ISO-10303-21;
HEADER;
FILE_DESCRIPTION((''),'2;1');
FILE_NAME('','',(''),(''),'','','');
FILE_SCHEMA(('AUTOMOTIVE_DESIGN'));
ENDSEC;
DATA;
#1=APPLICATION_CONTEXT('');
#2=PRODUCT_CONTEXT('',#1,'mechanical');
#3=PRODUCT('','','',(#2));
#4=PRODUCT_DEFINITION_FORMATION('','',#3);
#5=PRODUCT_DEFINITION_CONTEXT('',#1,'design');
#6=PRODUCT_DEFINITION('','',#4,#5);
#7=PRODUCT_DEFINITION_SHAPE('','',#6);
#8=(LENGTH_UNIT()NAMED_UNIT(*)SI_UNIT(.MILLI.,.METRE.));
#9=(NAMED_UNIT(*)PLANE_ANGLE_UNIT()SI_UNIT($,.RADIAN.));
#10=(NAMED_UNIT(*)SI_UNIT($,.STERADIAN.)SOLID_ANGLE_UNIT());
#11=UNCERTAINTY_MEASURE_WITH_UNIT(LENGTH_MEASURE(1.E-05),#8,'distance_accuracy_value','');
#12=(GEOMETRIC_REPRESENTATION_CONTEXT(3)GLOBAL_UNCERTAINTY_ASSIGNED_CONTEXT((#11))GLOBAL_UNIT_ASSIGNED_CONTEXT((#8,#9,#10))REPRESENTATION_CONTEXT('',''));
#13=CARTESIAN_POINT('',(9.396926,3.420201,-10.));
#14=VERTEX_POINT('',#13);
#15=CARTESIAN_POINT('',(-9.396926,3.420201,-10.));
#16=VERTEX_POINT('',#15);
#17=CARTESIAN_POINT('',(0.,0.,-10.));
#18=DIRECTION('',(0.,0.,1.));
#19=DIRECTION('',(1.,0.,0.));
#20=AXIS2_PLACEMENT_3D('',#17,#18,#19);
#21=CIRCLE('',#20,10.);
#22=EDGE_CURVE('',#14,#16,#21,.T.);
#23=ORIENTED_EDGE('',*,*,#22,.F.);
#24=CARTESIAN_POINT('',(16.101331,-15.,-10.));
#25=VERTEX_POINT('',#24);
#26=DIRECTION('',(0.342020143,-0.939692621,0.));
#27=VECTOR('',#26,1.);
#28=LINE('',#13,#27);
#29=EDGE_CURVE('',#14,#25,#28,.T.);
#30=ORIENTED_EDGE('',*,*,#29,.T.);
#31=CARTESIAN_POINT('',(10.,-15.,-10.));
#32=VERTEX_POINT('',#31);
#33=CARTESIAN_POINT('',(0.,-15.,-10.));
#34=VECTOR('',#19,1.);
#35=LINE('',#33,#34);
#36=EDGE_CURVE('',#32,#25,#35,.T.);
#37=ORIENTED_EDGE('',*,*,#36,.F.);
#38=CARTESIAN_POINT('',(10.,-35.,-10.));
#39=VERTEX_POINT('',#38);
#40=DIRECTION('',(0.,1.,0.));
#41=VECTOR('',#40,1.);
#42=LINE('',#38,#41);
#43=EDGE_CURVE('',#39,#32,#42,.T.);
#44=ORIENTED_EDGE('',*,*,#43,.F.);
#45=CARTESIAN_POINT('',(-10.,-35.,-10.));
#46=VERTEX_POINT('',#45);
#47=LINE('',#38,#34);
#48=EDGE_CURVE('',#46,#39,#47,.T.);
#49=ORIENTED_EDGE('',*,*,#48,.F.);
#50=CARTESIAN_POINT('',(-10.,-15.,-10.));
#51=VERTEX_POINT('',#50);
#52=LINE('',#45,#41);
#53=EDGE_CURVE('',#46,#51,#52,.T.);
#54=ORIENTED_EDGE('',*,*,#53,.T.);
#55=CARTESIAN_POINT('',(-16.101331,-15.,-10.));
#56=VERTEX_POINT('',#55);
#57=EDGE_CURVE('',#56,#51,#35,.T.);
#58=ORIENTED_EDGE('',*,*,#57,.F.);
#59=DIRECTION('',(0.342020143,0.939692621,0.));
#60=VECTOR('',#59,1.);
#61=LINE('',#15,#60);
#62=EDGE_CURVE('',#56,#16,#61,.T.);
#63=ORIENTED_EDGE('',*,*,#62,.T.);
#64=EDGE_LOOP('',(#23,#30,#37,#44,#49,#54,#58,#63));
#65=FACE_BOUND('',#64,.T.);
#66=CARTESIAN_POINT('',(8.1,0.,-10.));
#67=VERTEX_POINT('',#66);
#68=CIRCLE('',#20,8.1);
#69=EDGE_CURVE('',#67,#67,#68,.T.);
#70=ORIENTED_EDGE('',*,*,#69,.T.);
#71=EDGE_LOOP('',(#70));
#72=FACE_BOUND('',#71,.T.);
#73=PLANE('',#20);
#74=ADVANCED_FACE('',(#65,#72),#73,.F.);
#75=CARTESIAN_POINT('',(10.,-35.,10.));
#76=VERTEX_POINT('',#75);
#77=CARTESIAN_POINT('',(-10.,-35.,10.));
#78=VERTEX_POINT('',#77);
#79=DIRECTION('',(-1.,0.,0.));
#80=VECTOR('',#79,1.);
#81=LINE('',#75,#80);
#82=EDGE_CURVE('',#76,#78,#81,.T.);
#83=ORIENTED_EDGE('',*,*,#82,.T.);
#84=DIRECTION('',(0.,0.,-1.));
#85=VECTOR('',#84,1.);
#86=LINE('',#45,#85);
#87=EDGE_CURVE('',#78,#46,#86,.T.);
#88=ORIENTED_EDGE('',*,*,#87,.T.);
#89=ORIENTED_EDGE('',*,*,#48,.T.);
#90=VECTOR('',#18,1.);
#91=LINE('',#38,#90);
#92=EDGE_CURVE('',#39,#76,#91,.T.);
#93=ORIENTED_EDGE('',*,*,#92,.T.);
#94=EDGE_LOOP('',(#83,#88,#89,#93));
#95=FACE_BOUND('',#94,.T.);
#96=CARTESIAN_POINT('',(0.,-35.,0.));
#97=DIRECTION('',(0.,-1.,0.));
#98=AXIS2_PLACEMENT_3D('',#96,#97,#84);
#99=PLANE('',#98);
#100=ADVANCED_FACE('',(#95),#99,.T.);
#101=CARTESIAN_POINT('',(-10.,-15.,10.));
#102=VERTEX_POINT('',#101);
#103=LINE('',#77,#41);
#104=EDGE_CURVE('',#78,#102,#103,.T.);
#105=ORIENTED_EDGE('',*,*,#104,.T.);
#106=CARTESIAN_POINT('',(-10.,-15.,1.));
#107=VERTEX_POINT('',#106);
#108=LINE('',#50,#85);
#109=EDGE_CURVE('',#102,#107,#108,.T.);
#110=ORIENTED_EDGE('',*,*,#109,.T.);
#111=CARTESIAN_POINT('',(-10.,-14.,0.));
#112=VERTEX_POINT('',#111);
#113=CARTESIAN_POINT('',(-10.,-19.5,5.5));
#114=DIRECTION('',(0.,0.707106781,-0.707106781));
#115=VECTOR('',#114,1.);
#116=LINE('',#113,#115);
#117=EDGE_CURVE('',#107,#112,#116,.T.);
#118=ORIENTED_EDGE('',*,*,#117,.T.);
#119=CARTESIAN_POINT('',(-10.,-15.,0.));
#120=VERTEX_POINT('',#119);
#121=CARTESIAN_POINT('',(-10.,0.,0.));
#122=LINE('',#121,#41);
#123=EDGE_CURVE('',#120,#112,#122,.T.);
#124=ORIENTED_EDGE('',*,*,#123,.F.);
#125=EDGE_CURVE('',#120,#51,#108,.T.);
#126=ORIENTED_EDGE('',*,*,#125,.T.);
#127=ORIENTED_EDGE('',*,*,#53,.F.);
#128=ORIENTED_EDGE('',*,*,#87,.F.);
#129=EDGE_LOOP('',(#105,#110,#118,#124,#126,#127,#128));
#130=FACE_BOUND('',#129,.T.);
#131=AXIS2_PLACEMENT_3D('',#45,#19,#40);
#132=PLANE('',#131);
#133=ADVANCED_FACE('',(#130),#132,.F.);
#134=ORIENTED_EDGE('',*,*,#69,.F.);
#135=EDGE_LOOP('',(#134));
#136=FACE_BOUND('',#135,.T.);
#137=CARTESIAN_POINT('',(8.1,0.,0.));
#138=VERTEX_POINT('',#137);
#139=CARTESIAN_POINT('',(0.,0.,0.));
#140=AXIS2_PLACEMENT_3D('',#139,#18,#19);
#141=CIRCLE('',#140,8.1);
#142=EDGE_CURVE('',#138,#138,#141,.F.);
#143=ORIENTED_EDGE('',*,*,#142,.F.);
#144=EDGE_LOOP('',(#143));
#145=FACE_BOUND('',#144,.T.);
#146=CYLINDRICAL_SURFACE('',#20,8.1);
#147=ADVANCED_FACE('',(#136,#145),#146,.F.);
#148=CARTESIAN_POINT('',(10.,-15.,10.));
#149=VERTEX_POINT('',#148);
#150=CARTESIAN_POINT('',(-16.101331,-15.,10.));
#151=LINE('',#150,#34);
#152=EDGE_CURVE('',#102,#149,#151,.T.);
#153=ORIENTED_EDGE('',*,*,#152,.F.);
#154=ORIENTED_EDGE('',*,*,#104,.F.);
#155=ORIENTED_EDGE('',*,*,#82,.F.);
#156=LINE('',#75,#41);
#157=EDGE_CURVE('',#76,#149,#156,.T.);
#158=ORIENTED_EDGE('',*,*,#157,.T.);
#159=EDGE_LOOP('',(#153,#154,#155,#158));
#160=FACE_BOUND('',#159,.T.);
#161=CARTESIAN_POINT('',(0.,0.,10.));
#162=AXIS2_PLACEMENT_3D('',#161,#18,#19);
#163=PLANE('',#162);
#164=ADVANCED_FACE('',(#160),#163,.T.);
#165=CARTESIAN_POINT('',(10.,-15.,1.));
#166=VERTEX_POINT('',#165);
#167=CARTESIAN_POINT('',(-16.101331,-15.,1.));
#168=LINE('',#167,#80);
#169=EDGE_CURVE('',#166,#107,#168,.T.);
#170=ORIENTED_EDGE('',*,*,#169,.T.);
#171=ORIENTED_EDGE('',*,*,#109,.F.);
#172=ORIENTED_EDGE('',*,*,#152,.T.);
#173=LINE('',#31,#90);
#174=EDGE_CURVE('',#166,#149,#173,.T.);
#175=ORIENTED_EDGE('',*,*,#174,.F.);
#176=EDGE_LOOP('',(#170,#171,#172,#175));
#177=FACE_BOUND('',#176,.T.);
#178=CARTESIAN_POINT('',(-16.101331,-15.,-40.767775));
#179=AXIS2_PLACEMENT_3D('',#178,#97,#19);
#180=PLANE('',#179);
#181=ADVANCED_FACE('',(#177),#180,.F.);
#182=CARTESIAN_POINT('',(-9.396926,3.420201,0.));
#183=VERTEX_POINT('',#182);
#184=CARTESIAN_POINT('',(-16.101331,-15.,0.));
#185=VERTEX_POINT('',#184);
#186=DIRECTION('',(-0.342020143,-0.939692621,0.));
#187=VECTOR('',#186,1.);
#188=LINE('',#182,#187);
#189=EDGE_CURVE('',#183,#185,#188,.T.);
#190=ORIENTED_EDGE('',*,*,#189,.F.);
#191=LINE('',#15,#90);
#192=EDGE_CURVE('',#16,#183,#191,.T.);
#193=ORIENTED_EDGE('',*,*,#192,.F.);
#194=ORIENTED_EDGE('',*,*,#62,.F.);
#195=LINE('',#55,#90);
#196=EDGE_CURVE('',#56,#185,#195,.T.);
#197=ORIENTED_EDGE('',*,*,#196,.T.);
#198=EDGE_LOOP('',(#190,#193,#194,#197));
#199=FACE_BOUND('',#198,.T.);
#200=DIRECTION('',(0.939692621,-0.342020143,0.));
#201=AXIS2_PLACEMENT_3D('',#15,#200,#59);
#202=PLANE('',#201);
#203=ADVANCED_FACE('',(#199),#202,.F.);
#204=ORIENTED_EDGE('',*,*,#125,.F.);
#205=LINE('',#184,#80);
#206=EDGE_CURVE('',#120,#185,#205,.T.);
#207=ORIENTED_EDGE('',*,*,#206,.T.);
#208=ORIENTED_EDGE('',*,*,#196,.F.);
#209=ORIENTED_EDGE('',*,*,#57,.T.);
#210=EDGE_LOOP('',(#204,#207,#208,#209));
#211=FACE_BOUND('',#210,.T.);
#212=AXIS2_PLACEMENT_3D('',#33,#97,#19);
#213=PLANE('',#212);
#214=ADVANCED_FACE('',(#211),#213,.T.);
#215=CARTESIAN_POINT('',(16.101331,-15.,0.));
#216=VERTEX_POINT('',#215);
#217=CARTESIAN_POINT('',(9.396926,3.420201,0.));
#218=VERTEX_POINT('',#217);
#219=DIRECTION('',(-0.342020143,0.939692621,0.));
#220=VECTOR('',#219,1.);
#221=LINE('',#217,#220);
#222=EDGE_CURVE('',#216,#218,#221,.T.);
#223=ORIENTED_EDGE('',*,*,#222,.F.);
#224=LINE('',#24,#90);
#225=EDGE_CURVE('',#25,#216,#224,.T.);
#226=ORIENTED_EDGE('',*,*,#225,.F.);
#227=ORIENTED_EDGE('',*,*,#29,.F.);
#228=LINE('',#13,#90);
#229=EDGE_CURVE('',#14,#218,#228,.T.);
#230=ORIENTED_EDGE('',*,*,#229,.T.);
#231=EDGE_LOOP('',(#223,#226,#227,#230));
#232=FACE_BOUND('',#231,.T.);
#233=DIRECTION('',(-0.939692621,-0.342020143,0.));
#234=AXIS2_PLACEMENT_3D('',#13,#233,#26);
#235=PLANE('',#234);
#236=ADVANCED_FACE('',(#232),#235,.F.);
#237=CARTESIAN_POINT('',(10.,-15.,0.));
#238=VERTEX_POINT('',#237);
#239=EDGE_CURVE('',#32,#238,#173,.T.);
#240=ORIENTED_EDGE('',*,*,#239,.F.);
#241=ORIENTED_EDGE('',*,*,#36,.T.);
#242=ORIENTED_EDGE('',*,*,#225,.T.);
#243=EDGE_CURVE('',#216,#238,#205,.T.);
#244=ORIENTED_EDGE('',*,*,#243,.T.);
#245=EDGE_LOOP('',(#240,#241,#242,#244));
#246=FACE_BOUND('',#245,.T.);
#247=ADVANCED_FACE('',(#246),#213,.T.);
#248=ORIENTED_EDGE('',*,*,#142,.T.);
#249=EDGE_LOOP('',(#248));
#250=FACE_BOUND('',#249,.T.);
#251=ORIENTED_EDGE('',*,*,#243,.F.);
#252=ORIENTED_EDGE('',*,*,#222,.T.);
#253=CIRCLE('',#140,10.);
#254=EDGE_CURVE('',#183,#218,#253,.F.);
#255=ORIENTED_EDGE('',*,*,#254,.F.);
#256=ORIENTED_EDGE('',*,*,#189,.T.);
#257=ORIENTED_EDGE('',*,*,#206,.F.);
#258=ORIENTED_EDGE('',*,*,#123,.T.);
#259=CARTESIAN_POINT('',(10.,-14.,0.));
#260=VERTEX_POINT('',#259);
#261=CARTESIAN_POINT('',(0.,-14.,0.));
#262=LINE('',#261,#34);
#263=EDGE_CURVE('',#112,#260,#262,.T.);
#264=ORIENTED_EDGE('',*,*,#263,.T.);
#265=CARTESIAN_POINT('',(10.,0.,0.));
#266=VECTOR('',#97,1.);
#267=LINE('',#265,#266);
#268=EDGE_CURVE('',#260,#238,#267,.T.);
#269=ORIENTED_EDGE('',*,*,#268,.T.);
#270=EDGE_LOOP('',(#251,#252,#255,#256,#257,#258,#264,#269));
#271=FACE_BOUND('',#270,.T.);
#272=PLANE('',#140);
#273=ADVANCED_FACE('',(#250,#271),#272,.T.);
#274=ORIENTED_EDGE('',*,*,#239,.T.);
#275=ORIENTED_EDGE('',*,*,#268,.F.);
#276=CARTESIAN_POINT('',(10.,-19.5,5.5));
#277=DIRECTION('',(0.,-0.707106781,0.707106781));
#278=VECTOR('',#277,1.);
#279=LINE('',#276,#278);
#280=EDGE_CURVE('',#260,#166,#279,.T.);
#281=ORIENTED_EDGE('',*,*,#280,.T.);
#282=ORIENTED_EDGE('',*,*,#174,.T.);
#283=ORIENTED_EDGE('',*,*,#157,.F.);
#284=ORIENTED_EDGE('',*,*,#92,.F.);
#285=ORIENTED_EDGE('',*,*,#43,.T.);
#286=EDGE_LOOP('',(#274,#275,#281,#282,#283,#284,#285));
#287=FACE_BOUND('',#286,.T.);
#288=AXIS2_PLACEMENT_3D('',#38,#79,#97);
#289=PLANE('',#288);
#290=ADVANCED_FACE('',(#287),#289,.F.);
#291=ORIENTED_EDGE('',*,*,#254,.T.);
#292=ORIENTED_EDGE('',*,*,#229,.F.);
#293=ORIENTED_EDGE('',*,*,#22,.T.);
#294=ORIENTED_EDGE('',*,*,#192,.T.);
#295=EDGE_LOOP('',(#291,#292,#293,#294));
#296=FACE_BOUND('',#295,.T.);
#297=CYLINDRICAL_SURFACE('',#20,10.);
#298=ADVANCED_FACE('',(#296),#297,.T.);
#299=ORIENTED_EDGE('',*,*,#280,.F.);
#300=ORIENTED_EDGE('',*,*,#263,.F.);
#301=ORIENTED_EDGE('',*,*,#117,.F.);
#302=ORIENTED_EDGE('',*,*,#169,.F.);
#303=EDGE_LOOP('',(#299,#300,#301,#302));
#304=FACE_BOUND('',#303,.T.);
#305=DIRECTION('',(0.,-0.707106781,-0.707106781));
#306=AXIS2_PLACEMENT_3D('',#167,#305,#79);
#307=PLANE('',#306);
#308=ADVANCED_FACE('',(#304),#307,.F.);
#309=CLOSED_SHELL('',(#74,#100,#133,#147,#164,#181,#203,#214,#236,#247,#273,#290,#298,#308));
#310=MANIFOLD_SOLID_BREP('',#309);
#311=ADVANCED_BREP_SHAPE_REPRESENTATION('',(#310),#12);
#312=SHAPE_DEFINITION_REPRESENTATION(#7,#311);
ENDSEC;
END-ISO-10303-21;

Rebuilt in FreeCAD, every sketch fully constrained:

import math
import FreeCAD as App
import Part
import Sketcher
from FreeCAD import Vector
Q = App.Units.Quantity


def edges_at(feature, points):
    """Names of the edges that pass closest to the given points."""
    edges = feature.Shape.Edges
    near = lambda p: min(range(len(edges)), key=lambda i: edges[i].distToShape(Part.Vertex(*p))[0])
    return sorted({f"Edge{near(p) + 1}" for p in points})


def add_polygon(sketch, points):
    """Adds a closed chain of lines whose ends are joined by coincident constraints."""
    first, n = sketch.GeometryCount, len(points)
    for a, b in zip(points, points[1:] + points[:1]):
        sketch.addGeometry(Part.LineSegment(App.Vector(*a, 0), App.Vector(*b, 0)), False)
    for i in range(n):
        sketch.addConstraint(Sketcher.Constraint("Coincident", first + i, 2, first + (i + 1) % n, 1))

doc = App.newDocument("Part")
params = doc.addObject("Spreadsheet::Sheet", "Params")
for row, (alias, value) in enumerate([
    ("sketch1_radius", "10 mm"),
    ("sketch1_diameter", "16.2 mm"),
    ("pad1_length", "20 mm"),
    ("sketch2_diameter", "16.2 mm"),
    ("sketch2_diameter2", "13.2 mm"),
    ("pad2_length", "10 mm"),
    ("sketch3_width", "20 mm"),
    ("pad3_length", "20 mm"),
    ("sketch4_height", "25 mm"),
    ("pocket1_length", "10 mm"),
    ("chamfer_size", "1 mm"),
], start=1):
    params.set(f"A{row}", alias)
    params.set(f"B{row}", "=" + value)
    params.setAlias(f"B{row}", alias)

body = doc.addObject("PartDesign::Body", "Body")

sketch1 = body.newObject("Sketcher::SketchObject", "Sketch")
sketch1.AttachmentSupport = (doc.getObject("XY_Plane"), [""])
sketch1.MapMode = "FlatFace"
sketch1.addGeometry([
    Part.ArcOfCircle(Part.Circle(Vector(0, 0, 0), Vector(0, 0, 1), 10), math.radians(20), math.radians(160)),
    Part.LineSegment(Vector(-9.396926, 3.420201, 0), Vector(-16.101331, -15, 0)),
    Part.LineSegment(Vector(-16.101331, -15, 0), Vector(16.101331, -15, 0)),
    Part.LineSegment(Vector(16.101331, -15, 0), Vector(9.396926, 3.420201, 0)),
    Part.Circle(Vector(0, 0, 0), Vector(0, 0, 1), 8.1),
], False)
sketch1.addConstraint([
    Sketcher.Constraint("Tangent", 0, 2, 1, 1),
    Sketcher.Constraint("Coincident", 1, 2, 2, 1),
    Sketcher.Constraint("Coincident", 2, 2, 3, 1),
    Sketcher.Constraint("Tangent", 3, 2, 0, 1),
    Sketcher.Constraint("Horizontal", 2),
    Sketcher.Constraint("Coincident", 0, 3, -1, 1),
    Sketcher.Constraint("Coincident", 4, 3, -1, 1),
    Sketcher.Constraint("Horizontal", 0, 2, 3, 2),
    Sketcher.Constraint("Radius", 0, Q("10 mm")),
    Sketcher.Constraint("Diameter", 4, Q("16.2 mm")),
    Sketcher.Constraint("Angle", 1, Q("-110 deg")),
    Sketcher.Constraint("DistanceY", 1, 2, -1, 1, Q("15 mm")),
])
sketch1.setExpression("Constraints[8]", "Params.sketch1_radius")
sketch1.setExpression("Constraints[9]", "Params.sketch1_diameter")
pad1 = body.newObject("PartDesign::Pad", "Pad")
pad1.Profile = sketch1
pad1.setExpression("Length", "Params.pad1_length")
pad1.Midplane = True

sketch2 = body.newObject("Sketcher::SketchObject", "Sketch001")
sketch2.AttachmentSupport = (doc.getObject("XY_Plane"), [""])
sketch2.MapMode = "FlatFace"
sketch2.addGeometry([
    Part.Circle(Vector(0, 0, 0), Vector(0, 0, 1), 8.1),
    Part.Circle(Vector(0, 0, 0), Vector(0, 0, 1), 6.6),
], False)
sketch2.addConstraint([
    Sketcher.Constraint("Coincident", 0, 3, -1, 1),
    Sketcher.Constraint("Coincident", 1, 3, -1, 1),
    Sketcher.Constraint("Diameter", 0, Q("16.2 mm")),
    Sketcher.Constraint("Diameter", 1, Q("13.2 mm")),
])
sketch2.setExpression("Constraints[2]", "Params.sketch2_diameter")
sketch2.setExpression("Constraints[3]", "Params.sketch2_diameter2")
pad2 = body.newObject("PartDesign::Pad", "Pad001")
pad2.Profile = sketch2
pad2.setExpression("Length", "Params.pad2_length")

sketch3 = body.newObject("Sketcher::SketchObject", "Sketch002")
sketch3.AttachmentSupport = (doc.getObject("XZ_Plane"), [""])
sketch3.MapMode = "FlatFace"
sketch3.AttachmentOffset = App.Placement(Vector(0, 0, 15), App.Rotation())
add_polygon(sketch3, [(-10, 10), (-10, -10), (10, -10), (10, 10)])
sketch3.addConstraint([
    Sketcher.Constraint("Vertical", 0),
    Sketcher.Constraint("Horizontal", 1),
    Sketcher.Constraint("Vertical", 2),
    Sketcher.Constraint("Horizontal", 3),
    Sketcher.Constraint("Symmetric", 0, 2, 2, 2, -1, 1),
    Sketcher.Constraint("Equal", 3, 0),
    Sketcher.Constraint("DistanceX", 1, 1, 1, 2, Q("20 mm")),
])
sketch3.setExpression("Constraints[10]", "Params.sketch3_width")
pad3 = body.newObject("PartDesign::Pad", "Pad002")
pad3.Profile = sketch3
pad3.setExpression("Length", "Params.pad3_length")

sketch4 = body.newObject("Sketcher::SketchObject", "Sketch003")
sketch4.AttachmentSupport = (doc.getObject("XY_Plane"), [""])
sketch4.MapMode = "FlatFace"
sketch4.AttachmentOffset = App.Placement(Vector(0, 0, 10), App.Rotation())
add_polygon(sketch4, [(-16.101331, 10), (-16.101331, -15), (16.101331, -15), (16.101331, 10)])
sketch4.addConstraint([
    Sketcher.Constraint("Vertical", 0),
    Sketcher.Constraint("Horizontal", 1),
    Sketcher.Constraint("Vertical", 2),
    Sketcher.Constraint("Horizontal", 3),
    Sketcher.Constraint("DistanceY", 0, 2, 0, 1, Q("25 mm")),
    Sketcher.Constraint("DistanceY", 0, 2, -1, 1, Q("15 mm")),
    Sketcher.Constraint("DistanceX", 1, 1, 1, 2, Q("32.202662 mm")),
    Sketcher.Constraint("DistanceX", 0, 2, -1, 1, Q("16.101331 mm")),
])
sketch4.setExpression("Constraints[8]", "Params.sketch4_height")
pocket1 = body.newObject("PartDesign::Pocket", "Pocket")
pocket1.Profile = sketch4
pocket1.setExpression("Length", "Params.pocket1_length")
doc.recompute()

chamfer = body.newObject("PartDesign::Chamfer", "Chamfer")
chamfer.Base = (pocket1, edges_at(pocket1, [(0, -15, 0)]))
chamfer.setExpression("Size", "Params.chamfer_size")

doc.recompute()
